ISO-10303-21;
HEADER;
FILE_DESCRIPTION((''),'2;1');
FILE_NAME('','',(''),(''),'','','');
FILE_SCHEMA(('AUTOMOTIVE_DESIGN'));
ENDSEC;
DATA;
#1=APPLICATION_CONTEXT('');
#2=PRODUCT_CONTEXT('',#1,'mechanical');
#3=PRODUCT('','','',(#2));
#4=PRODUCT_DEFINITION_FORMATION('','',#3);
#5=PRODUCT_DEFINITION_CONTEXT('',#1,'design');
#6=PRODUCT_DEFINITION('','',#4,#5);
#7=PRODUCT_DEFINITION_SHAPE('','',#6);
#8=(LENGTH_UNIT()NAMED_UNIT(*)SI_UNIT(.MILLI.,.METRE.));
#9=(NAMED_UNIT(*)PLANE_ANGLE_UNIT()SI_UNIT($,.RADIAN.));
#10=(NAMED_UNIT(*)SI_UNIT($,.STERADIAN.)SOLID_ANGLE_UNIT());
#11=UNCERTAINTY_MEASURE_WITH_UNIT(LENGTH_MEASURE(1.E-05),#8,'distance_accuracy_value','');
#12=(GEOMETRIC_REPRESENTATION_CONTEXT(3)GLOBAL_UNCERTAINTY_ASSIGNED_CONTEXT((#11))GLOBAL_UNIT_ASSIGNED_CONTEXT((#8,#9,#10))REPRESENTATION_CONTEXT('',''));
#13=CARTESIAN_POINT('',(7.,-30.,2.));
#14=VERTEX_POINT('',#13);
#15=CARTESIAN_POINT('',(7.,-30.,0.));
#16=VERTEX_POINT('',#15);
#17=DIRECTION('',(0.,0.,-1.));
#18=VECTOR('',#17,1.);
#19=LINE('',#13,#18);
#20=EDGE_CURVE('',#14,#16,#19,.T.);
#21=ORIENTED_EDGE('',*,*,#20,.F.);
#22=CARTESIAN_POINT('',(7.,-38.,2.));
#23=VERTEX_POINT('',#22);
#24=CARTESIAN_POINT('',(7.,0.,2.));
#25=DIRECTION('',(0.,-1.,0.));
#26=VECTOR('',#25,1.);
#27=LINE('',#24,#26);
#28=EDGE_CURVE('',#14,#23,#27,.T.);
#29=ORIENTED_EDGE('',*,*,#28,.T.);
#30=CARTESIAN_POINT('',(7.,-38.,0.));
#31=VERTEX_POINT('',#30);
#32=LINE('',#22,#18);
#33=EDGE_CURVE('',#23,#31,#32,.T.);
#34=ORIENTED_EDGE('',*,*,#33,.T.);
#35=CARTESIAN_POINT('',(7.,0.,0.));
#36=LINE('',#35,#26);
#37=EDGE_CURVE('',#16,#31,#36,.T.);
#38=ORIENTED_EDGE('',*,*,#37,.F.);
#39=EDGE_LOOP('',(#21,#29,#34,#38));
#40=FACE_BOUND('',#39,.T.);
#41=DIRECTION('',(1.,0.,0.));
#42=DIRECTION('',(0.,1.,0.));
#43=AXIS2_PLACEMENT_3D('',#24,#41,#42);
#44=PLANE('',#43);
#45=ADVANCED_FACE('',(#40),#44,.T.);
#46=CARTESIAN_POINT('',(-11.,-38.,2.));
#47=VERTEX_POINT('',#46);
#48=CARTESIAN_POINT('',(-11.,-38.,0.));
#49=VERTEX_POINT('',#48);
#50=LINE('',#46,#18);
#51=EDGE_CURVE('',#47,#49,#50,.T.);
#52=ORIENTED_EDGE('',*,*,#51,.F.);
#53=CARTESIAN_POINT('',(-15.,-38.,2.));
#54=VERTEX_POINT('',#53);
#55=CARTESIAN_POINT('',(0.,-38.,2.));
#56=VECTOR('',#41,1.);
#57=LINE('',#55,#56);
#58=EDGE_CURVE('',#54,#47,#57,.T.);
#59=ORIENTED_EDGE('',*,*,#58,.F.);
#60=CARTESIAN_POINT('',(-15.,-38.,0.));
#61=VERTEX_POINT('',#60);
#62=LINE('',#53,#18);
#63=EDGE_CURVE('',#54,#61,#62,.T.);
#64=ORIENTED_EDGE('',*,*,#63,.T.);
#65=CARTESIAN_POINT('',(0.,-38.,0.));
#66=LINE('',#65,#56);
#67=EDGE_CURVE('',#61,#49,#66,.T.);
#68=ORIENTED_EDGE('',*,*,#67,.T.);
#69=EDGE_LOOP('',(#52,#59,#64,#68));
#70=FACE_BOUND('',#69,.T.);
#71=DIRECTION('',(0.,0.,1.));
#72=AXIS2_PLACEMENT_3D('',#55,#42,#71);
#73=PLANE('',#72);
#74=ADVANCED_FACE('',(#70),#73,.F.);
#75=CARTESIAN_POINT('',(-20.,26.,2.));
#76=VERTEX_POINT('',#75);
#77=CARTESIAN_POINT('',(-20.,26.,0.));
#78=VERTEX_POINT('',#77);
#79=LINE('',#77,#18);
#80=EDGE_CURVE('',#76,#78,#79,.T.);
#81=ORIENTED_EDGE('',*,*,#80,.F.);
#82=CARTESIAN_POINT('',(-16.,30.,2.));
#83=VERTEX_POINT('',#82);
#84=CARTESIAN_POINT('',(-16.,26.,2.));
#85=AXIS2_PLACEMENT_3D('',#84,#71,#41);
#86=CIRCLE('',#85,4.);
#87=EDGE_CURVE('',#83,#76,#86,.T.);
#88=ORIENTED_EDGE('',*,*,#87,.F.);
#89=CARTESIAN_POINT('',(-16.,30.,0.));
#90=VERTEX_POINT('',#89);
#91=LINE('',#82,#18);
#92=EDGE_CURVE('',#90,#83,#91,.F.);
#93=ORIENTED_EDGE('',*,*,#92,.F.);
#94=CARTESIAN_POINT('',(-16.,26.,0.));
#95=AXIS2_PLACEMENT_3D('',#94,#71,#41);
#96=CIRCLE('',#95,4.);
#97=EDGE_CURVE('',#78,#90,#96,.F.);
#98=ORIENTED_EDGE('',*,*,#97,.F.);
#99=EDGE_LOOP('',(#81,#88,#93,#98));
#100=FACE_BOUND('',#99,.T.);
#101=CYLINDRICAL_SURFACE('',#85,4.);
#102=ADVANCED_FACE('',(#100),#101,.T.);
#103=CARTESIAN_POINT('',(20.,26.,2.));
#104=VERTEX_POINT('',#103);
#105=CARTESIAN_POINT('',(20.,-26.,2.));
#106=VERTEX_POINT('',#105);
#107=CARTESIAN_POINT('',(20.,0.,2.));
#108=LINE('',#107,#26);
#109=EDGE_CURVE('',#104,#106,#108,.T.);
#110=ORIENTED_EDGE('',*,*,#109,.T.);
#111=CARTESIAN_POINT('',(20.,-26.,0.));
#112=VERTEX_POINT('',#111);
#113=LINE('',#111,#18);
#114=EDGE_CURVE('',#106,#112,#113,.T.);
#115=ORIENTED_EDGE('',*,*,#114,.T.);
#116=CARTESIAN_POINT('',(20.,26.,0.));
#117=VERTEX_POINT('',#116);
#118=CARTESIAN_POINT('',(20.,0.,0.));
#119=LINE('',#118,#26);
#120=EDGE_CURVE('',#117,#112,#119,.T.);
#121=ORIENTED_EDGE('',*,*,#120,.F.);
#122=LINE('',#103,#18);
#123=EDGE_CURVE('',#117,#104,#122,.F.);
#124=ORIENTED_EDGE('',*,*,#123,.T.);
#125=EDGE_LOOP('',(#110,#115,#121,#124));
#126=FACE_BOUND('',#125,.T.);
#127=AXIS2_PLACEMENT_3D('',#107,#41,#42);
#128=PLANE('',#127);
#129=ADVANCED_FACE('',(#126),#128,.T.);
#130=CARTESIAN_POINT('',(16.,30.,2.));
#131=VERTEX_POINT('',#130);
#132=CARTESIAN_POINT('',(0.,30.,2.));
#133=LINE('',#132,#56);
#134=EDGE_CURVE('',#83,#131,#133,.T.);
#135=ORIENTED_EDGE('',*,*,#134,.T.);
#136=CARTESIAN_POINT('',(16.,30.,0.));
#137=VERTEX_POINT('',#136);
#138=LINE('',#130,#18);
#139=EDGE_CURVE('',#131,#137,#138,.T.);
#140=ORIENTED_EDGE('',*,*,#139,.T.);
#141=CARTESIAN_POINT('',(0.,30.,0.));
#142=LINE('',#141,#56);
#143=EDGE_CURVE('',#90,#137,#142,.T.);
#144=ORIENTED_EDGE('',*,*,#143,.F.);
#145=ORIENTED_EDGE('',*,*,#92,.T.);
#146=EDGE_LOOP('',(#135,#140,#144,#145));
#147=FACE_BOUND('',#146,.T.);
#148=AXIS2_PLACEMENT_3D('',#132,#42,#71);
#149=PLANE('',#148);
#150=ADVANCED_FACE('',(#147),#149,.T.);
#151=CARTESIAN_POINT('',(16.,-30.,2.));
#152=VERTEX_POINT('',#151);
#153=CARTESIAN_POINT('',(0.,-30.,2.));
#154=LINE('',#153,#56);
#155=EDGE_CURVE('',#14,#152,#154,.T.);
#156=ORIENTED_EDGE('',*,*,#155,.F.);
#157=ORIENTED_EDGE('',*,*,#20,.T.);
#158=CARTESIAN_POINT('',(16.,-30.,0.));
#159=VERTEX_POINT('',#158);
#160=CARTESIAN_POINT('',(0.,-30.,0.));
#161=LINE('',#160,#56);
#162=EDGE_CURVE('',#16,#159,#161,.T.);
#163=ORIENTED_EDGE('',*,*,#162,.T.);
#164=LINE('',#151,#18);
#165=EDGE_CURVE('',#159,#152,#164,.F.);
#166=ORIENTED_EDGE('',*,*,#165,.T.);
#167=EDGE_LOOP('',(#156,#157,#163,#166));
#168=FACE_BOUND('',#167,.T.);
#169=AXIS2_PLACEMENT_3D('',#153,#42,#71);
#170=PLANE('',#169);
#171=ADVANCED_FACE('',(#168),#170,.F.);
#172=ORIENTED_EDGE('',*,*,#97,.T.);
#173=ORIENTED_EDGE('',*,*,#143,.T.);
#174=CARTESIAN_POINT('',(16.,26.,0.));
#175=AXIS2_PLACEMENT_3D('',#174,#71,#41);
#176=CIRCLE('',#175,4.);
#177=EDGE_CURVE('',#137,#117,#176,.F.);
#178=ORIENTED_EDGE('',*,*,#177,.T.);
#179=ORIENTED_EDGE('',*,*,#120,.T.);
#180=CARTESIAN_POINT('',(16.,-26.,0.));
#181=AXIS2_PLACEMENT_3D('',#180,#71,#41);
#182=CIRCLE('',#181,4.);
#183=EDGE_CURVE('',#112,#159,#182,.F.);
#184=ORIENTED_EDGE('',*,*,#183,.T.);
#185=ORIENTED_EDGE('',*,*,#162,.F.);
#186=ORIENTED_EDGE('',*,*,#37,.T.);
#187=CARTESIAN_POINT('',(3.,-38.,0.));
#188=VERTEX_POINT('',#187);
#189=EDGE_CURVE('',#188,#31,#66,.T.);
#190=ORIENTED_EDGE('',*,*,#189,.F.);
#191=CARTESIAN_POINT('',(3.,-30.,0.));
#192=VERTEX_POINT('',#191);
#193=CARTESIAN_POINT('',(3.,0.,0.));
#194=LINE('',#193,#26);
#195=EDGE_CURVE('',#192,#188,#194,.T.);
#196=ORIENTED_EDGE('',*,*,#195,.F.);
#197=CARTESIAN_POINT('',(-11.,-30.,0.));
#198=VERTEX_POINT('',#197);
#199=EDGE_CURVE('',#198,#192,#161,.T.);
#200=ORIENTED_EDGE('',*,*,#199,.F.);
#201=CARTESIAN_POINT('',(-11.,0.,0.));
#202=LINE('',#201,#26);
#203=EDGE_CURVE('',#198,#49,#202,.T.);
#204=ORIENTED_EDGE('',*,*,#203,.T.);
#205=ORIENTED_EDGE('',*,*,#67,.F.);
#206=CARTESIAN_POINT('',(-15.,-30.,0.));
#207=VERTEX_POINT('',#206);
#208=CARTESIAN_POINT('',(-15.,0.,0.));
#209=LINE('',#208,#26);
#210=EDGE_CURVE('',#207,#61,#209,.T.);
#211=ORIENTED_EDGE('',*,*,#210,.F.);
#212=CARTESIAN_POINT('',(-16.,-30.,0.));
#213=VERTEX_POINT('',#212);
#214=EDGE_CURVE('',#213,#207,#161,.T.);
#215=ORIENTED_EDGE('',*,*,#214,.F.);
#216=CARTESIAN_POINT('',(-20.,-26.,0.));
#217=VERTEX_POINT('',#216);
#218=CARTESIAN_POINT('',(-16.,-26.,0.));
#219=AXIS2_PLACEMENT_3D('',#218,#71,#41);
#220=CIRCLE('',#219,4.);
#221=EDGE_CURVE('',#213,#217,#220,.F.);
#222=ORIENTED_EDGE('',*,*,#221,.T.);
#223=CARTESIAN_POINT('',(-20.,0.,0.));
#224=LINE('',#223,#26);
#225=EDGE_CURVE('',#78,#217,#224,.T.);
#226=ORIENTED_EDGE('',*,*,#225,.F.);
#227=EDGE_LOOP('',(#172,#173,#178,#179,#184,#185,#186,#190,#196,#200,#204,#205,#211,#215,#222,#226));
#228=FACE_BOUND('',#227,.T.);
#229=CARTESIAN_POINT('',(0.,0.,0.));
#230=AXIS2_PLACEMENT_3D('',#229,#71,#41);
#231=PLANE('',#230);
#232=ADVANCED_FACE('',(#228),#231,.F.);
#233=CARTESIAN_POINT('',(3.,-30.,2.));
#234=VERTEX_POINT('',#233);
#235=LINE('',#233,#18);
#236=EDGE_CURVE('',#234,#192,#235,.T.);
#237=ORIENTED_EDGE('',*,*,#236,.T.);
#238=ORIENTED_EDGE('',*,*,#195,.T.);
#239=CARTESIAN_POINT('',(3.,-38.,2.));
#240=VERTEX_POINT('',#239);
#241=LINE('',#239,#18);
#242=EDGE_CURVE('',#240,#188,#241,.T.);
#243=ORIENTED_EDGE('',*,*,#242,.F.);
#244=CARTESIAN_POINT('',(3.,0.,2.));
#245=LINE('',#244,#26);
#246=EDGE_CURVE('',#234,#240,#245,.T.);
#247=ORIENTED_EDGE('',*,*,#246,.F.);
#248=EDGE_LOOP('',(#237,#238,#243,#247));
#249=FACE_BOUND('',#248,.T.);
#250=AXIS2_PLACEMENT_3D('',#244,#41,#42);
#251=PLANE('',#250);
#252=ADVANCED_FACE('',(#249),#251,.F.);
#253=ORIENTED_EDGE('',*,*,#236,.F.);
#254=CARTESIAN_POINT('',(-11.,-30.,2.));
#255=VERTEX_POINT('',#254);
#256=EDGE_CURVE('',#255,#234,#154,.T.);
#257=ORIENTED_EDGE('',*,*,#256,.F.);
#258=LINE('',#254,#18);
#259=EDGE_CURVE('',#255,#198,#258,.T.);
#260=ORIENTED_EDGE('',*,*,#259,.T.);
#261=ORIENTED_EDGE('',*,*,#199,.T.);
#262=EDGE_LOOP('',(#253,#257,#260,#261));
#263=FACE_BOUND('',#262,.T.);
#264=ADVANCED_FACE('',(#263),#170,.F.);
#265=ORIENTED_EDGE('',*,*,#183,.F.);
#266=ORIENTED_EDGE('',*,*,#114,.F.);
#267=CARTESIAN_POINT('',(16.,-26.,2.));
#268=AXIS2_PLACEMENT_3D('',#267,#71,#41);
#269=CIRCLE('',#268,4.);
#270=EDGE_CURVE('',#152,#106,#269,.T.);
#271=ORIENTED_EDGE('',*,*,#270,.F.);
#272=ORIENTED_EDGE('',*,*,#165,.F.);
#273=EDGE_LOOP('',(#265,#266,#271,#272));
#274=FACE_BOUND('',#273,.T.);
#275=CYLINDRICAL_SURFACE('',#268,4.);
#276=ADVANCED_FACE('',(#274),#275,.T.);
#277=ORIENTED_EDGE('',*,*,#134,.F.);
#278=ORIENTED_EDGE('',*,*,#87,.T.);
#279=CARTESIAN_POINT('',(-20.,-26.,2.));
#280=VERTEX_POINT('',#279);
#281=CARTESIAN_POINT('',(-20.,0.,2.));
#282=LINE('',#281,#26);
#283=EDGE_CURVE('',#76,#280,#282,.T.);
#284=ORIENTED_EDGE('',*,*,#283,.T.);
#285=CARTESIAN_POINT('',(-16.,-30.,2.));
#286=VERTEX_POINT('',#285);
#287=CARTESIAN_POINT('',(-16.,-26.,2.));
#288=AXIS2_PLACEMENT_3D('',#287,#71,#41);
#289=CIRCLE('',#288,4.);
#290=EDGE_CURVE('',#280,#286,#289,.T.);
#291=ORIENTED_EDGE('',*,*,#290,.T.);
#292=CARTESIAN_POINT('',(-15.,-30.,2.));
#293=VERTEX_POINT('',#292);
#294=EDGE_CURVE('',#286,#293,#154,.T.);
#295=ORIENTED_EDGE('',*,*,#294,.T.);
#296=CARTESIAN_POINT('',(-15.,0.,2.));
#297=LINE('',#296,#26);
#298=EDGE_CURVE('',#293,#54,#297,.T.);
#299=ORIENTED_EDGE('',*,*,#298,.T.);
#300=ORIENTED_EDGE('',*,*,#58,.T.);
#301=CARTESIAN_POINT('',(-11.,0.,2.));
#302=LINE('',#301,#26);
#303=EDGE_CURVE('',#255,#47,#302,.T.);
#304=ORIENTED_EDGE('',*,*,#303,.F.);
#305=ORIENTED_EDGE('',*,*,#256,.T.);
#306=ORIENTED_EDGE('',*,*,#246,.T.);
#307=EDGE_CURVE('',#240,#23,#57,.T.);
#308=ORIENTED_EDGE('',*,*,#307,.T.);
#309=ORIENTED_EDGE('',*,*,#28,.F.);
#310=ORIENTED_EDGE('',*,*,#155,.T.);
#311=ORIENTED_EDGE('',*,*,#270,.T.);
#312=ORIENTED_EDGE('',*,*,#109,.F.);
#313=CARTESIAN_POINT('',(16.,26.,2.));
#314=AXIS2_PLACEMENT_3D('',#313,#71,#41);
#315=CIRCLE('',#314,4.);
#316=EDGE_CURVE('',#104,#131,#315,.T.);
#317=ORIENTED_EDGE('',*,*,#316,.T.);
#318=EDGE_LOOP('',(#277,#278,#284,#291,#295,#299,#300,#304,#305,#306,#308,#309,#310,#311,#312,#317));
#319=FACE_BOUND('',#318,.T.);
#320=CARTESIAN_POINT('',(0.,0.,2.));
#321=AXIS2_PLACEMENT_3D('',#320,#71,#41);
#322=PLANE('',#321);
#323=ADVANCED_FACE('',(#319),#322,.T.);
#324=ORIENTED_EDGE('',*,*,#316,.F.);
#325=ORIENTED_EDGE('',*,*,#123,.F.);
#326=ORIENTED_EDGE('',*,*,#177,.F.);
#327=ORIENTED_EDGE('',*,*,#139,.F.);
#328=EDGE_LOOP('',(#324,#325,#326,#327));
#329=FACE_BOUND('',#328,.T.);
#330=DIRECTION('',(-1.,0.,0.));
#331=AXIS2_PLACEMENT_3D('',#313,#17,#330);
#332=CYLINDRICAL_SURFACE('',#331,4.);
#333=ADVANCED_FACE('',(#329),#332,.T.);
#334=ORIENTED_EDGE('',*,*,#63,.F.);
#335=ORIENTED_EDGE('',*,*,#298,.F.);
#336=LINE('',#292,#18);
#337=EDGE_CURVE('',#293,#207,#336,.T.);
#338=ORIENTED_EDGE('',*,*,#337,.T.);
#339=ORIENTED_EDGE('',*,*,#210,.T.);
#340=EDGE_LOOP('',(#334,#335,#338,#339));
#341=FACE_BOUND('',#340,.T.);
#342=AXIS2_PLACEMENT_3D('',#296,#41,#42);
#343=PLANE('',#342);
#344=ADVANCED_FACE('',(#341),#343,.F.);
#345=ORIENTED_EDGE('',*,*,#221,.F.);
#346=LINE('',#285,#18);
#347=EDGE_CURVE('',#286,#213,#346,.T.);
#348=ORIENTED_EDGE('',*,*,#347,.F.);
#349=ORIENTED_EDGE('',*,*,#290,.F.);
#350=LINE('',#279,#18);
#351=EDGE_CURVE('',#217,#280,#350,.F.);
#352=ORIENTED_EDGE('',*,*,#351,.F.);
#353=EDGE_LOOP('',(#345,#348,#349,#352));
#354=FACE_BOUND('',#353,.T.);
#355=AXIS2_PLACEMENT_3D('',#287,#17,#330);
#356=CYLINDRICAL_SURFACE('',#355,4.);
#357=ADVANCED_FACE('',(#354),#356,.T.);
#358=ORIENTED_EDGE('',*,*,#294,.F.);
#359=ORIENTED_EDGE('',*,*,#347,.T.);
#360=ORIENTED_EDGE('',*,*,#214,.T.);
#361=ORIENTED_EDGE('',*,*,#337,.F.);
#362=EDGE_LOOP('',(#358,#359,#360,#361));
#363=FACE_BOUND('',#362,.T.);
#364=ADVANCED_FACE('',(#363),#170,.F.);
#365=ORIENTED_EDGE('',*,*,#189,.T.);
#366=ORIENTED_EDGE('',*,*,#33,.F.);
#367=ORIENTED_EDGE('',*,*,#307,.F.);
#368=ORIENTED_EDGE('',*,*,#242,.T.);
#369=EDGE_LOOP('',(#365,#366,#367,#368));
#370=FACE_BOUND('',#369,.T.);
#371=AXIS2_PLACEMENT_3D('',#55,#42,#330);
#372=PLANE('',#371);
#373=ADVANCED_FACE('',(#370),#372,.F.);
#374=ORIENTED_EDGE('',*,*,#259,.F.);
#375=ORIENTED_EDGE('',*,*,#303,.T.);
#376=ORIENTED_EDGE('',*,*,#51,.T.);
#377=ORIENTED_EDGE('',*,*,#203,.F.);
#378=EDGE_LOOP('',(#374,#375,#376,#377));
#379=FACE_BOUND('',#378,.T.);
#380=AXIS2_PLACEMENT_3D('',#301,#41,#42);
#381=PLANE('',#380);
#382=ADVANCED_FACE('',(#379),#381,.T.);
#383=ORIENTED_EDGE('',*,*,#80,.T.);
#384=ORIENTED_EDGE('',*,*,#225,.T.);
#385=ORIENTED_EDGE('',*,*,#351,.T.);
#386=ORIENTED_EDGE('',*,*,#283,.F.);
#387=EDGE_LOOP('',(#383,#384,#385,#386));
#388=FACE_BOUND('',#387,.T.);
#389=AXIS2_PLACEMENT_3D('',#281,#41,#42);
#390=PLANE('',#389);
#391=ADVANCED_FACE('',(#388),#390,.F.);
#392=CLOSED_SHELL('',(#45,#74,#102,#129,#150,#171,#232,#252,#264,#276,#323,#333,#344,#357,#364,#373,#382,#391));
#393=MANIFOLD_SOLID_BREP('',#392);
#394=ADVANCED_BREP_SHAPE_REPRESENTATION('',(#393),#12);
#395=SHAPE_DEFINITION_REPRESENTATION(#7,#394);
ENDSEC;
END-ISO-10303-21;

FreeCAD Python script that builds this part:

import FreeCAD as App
import Part
import Sketcher

V = App.Vector
Q = App.Units.Quantity


def edges_at(feature, points):
    """Names of the edges that pass closest to the given points."""
    edges = feature.Shape.Edges
    near = lambda p: min(range(len(edges)), key=lambda i: edges[i].distToShape(Part.Vertex(*p))[0])
    return sorted({f"Edge{near(p) + 1}" for p in points})

doc = App.newDocument("Part")
body = doc.addObject("PartDesign::Body", "Body")

sketch1 = doc.addObject("Sketcher::SketchObject", "Sketch")
body.addObject(sketch1)
sketch1.AttachmentSupport = (doc.XY_Plane, [""])
sketch1.MapMode = "FlatFace"
sketch1.addGeometry(Part.LineSegment(V(-20, 30, 0), V(-20, -30, 0)), False)
sketch1.addGeometry(Part.LineSegment(V(-20, -30, 0), V(-15, -30, 0)), False)
sketch1.addGeometry(Part.LineSegment(V(-15, -30, 0), V(-15, -38, 0)), False)
sketch1.addGeometry(Part.LineSegment(V(-15, -38, 0), V(-11, -38, 0)), False)
sketch1.addGeometry(Part.LineSegment(V(-11, -38, 0), V(-11, -30, 0)), False)
sketch1.addGeometry(Part.LineSegment(V(-11, -30, 0), V(3, -30, 0)), False)
sketch1.addGeometry(Part.LineSegment(V(3, -30, 0), V(3, -38, 0)), False)
sketch1.addGeometry(Part.LineSegment(V(3, -38, 0), V(7, -38, 0)), False)
sketch1.addGeometry(Part.LineSegment(V(7, -38, 0), V(7, -30, 0)), False)
sketch1.addGeometry(Part.LineSegment(V(7, -30, 0), V(20, -30, 0)), False)
sketch1.addGeometry(Part.LineSegment(V(20, -30, 0), V(20, 30, 0)), False)
sketch1.addGeometry(Part.LineSegment(V(20, 30, 0), V(-20, 30, 0)), False)
sketch1.addConstraint(Sketcher.Constraint("Coincident", 0, 2, 1, 1))
sketch1.addConstraint(Sketcher.Constraint("Coincident", 1, 2, 2, 1))
sketch1.addConstraint(Sketcher.Constraint("Coincident", 2, 2, 3, 1))
sketch1.addConstraint(Sketcher.Constraint("Coincident", 3, 2, 4, 1))
sketch1.addConstraint(Sketcher.Constraint("Coincident", 4, 2, 5, 1))
sketch1.addConstraint(Sketcher.Constraint("Coincident", 5, 2, 6, 1))
sketch1.addConstraint(Sketcher.Constraint("Coincident", 6, 2, 7, 1))
sketch1.addConstraint(Sketcher.Constraint("Coincident", 7, 2, 8, 1))
sketch1.addConstraint(Sketcher.Constraint("Coincident", 8, 2, 9, 1))
sketch1.addConstraint(Sketcher.Constraint("Coincident", 9, 2, 10, 1))
sketch1.addConstraint(Sketcher.Constraint("Coincident", 10, 2, 11, 1))
sketch1.addConstraint(Sketcher.Constraint("Coincident", 11, 2, 0, 1))
sketch1.addConstraint(Sketcher.Constraint("Vertical", 0))
sketch1.addConstraint(Sketcher.Constraint("Horizontal", 1))
sketch1.addConstraint(Sketcher.Constraint("Vertical", 2))
sketch1.addConstraint(Sketcher.Constraint("Horizontal", 3))
sketch1.addConstraint(Sketcher.Constraint("Vertical", 4))
sketch1.addConstraint(Sketcher.Constraint("Horizontal", 5))
sketch1.addConstraint(Sketcher.Constraint("Vertical", 6))
sketch1.addConstraint(Sketcher.Constraint("Horizontal", 7))
sketch1.addConstraint(Sketcher.Constraint("Vertical", 8))
sketch1.addConstraint(Sketcher.Constraint("Horizontal", 9))
sketch1.addConstraint(Sketcher.Constraint("Vertical", 10))
sketch1.addConstraint(Sketcher.Constraint("Horizontal", 11))
sketch1.addConstraint(Sketcher.Constraint("Symmetric", 0, 2, 10, 2, -1, 1))
sketch1.addConstraint(Sketcher.Constraint("Horizontal", 1, 2, 4, 2))
sketch1.addConstraint(Sketcher.Constraint("Horizontal", 3, 2, 6, 2))
sketch1.addConstraint(Sketcher.Constraint("Horizontal", 5, 2, 8, 2))
sketch1.addConstraint(Sketcher.Constraint("Equal", 3, 7))
sketch1.addConstraint(Sketcher.Constraint("DistanceX", 1, 1, 1, 2, Q("5 mm")))
sketch1.addConstraint(Sketcher.Constraint("DistanceX", 3, 1, 3, 2, Q("4 mm")))
sketch1.addConstraint(Sketcher.Constraint("DistanceX", 5, 1, 5, 2, Q("14 mm")))
sketch1.addConstraint(Sketcher.Constraint("DistanceX", 9, 1, 9, 2, Q("13 mm")))
sketch1.addConstraint(Sketcher.Constraint("DistanceY", 0, 2, 0, 1, Q("60 mm")))
sketch1.addConstraint(Sketcher.Constraint("DistanceY", 2, 2, 2, 1, Q("8 mm")))
pad1 = doc.addObject("PartDesign::Pad", "Pad")
body.addObject(pad1)
pad1.Profile = sketch1
pad1.Length = 2
doc.recompute()

fillet = doc.addObject("PartDesign::Fillet", "Fillet")
body.addObject(fillet)
fillet.Base = (pad1, edges_at(pad1, [
    (20, -30, 1),
    (-20, -30, 1),
    (-20, 30, 1),
    (20, 30, 1),
]))
fillet.Radius = 4

doc.recompute()
